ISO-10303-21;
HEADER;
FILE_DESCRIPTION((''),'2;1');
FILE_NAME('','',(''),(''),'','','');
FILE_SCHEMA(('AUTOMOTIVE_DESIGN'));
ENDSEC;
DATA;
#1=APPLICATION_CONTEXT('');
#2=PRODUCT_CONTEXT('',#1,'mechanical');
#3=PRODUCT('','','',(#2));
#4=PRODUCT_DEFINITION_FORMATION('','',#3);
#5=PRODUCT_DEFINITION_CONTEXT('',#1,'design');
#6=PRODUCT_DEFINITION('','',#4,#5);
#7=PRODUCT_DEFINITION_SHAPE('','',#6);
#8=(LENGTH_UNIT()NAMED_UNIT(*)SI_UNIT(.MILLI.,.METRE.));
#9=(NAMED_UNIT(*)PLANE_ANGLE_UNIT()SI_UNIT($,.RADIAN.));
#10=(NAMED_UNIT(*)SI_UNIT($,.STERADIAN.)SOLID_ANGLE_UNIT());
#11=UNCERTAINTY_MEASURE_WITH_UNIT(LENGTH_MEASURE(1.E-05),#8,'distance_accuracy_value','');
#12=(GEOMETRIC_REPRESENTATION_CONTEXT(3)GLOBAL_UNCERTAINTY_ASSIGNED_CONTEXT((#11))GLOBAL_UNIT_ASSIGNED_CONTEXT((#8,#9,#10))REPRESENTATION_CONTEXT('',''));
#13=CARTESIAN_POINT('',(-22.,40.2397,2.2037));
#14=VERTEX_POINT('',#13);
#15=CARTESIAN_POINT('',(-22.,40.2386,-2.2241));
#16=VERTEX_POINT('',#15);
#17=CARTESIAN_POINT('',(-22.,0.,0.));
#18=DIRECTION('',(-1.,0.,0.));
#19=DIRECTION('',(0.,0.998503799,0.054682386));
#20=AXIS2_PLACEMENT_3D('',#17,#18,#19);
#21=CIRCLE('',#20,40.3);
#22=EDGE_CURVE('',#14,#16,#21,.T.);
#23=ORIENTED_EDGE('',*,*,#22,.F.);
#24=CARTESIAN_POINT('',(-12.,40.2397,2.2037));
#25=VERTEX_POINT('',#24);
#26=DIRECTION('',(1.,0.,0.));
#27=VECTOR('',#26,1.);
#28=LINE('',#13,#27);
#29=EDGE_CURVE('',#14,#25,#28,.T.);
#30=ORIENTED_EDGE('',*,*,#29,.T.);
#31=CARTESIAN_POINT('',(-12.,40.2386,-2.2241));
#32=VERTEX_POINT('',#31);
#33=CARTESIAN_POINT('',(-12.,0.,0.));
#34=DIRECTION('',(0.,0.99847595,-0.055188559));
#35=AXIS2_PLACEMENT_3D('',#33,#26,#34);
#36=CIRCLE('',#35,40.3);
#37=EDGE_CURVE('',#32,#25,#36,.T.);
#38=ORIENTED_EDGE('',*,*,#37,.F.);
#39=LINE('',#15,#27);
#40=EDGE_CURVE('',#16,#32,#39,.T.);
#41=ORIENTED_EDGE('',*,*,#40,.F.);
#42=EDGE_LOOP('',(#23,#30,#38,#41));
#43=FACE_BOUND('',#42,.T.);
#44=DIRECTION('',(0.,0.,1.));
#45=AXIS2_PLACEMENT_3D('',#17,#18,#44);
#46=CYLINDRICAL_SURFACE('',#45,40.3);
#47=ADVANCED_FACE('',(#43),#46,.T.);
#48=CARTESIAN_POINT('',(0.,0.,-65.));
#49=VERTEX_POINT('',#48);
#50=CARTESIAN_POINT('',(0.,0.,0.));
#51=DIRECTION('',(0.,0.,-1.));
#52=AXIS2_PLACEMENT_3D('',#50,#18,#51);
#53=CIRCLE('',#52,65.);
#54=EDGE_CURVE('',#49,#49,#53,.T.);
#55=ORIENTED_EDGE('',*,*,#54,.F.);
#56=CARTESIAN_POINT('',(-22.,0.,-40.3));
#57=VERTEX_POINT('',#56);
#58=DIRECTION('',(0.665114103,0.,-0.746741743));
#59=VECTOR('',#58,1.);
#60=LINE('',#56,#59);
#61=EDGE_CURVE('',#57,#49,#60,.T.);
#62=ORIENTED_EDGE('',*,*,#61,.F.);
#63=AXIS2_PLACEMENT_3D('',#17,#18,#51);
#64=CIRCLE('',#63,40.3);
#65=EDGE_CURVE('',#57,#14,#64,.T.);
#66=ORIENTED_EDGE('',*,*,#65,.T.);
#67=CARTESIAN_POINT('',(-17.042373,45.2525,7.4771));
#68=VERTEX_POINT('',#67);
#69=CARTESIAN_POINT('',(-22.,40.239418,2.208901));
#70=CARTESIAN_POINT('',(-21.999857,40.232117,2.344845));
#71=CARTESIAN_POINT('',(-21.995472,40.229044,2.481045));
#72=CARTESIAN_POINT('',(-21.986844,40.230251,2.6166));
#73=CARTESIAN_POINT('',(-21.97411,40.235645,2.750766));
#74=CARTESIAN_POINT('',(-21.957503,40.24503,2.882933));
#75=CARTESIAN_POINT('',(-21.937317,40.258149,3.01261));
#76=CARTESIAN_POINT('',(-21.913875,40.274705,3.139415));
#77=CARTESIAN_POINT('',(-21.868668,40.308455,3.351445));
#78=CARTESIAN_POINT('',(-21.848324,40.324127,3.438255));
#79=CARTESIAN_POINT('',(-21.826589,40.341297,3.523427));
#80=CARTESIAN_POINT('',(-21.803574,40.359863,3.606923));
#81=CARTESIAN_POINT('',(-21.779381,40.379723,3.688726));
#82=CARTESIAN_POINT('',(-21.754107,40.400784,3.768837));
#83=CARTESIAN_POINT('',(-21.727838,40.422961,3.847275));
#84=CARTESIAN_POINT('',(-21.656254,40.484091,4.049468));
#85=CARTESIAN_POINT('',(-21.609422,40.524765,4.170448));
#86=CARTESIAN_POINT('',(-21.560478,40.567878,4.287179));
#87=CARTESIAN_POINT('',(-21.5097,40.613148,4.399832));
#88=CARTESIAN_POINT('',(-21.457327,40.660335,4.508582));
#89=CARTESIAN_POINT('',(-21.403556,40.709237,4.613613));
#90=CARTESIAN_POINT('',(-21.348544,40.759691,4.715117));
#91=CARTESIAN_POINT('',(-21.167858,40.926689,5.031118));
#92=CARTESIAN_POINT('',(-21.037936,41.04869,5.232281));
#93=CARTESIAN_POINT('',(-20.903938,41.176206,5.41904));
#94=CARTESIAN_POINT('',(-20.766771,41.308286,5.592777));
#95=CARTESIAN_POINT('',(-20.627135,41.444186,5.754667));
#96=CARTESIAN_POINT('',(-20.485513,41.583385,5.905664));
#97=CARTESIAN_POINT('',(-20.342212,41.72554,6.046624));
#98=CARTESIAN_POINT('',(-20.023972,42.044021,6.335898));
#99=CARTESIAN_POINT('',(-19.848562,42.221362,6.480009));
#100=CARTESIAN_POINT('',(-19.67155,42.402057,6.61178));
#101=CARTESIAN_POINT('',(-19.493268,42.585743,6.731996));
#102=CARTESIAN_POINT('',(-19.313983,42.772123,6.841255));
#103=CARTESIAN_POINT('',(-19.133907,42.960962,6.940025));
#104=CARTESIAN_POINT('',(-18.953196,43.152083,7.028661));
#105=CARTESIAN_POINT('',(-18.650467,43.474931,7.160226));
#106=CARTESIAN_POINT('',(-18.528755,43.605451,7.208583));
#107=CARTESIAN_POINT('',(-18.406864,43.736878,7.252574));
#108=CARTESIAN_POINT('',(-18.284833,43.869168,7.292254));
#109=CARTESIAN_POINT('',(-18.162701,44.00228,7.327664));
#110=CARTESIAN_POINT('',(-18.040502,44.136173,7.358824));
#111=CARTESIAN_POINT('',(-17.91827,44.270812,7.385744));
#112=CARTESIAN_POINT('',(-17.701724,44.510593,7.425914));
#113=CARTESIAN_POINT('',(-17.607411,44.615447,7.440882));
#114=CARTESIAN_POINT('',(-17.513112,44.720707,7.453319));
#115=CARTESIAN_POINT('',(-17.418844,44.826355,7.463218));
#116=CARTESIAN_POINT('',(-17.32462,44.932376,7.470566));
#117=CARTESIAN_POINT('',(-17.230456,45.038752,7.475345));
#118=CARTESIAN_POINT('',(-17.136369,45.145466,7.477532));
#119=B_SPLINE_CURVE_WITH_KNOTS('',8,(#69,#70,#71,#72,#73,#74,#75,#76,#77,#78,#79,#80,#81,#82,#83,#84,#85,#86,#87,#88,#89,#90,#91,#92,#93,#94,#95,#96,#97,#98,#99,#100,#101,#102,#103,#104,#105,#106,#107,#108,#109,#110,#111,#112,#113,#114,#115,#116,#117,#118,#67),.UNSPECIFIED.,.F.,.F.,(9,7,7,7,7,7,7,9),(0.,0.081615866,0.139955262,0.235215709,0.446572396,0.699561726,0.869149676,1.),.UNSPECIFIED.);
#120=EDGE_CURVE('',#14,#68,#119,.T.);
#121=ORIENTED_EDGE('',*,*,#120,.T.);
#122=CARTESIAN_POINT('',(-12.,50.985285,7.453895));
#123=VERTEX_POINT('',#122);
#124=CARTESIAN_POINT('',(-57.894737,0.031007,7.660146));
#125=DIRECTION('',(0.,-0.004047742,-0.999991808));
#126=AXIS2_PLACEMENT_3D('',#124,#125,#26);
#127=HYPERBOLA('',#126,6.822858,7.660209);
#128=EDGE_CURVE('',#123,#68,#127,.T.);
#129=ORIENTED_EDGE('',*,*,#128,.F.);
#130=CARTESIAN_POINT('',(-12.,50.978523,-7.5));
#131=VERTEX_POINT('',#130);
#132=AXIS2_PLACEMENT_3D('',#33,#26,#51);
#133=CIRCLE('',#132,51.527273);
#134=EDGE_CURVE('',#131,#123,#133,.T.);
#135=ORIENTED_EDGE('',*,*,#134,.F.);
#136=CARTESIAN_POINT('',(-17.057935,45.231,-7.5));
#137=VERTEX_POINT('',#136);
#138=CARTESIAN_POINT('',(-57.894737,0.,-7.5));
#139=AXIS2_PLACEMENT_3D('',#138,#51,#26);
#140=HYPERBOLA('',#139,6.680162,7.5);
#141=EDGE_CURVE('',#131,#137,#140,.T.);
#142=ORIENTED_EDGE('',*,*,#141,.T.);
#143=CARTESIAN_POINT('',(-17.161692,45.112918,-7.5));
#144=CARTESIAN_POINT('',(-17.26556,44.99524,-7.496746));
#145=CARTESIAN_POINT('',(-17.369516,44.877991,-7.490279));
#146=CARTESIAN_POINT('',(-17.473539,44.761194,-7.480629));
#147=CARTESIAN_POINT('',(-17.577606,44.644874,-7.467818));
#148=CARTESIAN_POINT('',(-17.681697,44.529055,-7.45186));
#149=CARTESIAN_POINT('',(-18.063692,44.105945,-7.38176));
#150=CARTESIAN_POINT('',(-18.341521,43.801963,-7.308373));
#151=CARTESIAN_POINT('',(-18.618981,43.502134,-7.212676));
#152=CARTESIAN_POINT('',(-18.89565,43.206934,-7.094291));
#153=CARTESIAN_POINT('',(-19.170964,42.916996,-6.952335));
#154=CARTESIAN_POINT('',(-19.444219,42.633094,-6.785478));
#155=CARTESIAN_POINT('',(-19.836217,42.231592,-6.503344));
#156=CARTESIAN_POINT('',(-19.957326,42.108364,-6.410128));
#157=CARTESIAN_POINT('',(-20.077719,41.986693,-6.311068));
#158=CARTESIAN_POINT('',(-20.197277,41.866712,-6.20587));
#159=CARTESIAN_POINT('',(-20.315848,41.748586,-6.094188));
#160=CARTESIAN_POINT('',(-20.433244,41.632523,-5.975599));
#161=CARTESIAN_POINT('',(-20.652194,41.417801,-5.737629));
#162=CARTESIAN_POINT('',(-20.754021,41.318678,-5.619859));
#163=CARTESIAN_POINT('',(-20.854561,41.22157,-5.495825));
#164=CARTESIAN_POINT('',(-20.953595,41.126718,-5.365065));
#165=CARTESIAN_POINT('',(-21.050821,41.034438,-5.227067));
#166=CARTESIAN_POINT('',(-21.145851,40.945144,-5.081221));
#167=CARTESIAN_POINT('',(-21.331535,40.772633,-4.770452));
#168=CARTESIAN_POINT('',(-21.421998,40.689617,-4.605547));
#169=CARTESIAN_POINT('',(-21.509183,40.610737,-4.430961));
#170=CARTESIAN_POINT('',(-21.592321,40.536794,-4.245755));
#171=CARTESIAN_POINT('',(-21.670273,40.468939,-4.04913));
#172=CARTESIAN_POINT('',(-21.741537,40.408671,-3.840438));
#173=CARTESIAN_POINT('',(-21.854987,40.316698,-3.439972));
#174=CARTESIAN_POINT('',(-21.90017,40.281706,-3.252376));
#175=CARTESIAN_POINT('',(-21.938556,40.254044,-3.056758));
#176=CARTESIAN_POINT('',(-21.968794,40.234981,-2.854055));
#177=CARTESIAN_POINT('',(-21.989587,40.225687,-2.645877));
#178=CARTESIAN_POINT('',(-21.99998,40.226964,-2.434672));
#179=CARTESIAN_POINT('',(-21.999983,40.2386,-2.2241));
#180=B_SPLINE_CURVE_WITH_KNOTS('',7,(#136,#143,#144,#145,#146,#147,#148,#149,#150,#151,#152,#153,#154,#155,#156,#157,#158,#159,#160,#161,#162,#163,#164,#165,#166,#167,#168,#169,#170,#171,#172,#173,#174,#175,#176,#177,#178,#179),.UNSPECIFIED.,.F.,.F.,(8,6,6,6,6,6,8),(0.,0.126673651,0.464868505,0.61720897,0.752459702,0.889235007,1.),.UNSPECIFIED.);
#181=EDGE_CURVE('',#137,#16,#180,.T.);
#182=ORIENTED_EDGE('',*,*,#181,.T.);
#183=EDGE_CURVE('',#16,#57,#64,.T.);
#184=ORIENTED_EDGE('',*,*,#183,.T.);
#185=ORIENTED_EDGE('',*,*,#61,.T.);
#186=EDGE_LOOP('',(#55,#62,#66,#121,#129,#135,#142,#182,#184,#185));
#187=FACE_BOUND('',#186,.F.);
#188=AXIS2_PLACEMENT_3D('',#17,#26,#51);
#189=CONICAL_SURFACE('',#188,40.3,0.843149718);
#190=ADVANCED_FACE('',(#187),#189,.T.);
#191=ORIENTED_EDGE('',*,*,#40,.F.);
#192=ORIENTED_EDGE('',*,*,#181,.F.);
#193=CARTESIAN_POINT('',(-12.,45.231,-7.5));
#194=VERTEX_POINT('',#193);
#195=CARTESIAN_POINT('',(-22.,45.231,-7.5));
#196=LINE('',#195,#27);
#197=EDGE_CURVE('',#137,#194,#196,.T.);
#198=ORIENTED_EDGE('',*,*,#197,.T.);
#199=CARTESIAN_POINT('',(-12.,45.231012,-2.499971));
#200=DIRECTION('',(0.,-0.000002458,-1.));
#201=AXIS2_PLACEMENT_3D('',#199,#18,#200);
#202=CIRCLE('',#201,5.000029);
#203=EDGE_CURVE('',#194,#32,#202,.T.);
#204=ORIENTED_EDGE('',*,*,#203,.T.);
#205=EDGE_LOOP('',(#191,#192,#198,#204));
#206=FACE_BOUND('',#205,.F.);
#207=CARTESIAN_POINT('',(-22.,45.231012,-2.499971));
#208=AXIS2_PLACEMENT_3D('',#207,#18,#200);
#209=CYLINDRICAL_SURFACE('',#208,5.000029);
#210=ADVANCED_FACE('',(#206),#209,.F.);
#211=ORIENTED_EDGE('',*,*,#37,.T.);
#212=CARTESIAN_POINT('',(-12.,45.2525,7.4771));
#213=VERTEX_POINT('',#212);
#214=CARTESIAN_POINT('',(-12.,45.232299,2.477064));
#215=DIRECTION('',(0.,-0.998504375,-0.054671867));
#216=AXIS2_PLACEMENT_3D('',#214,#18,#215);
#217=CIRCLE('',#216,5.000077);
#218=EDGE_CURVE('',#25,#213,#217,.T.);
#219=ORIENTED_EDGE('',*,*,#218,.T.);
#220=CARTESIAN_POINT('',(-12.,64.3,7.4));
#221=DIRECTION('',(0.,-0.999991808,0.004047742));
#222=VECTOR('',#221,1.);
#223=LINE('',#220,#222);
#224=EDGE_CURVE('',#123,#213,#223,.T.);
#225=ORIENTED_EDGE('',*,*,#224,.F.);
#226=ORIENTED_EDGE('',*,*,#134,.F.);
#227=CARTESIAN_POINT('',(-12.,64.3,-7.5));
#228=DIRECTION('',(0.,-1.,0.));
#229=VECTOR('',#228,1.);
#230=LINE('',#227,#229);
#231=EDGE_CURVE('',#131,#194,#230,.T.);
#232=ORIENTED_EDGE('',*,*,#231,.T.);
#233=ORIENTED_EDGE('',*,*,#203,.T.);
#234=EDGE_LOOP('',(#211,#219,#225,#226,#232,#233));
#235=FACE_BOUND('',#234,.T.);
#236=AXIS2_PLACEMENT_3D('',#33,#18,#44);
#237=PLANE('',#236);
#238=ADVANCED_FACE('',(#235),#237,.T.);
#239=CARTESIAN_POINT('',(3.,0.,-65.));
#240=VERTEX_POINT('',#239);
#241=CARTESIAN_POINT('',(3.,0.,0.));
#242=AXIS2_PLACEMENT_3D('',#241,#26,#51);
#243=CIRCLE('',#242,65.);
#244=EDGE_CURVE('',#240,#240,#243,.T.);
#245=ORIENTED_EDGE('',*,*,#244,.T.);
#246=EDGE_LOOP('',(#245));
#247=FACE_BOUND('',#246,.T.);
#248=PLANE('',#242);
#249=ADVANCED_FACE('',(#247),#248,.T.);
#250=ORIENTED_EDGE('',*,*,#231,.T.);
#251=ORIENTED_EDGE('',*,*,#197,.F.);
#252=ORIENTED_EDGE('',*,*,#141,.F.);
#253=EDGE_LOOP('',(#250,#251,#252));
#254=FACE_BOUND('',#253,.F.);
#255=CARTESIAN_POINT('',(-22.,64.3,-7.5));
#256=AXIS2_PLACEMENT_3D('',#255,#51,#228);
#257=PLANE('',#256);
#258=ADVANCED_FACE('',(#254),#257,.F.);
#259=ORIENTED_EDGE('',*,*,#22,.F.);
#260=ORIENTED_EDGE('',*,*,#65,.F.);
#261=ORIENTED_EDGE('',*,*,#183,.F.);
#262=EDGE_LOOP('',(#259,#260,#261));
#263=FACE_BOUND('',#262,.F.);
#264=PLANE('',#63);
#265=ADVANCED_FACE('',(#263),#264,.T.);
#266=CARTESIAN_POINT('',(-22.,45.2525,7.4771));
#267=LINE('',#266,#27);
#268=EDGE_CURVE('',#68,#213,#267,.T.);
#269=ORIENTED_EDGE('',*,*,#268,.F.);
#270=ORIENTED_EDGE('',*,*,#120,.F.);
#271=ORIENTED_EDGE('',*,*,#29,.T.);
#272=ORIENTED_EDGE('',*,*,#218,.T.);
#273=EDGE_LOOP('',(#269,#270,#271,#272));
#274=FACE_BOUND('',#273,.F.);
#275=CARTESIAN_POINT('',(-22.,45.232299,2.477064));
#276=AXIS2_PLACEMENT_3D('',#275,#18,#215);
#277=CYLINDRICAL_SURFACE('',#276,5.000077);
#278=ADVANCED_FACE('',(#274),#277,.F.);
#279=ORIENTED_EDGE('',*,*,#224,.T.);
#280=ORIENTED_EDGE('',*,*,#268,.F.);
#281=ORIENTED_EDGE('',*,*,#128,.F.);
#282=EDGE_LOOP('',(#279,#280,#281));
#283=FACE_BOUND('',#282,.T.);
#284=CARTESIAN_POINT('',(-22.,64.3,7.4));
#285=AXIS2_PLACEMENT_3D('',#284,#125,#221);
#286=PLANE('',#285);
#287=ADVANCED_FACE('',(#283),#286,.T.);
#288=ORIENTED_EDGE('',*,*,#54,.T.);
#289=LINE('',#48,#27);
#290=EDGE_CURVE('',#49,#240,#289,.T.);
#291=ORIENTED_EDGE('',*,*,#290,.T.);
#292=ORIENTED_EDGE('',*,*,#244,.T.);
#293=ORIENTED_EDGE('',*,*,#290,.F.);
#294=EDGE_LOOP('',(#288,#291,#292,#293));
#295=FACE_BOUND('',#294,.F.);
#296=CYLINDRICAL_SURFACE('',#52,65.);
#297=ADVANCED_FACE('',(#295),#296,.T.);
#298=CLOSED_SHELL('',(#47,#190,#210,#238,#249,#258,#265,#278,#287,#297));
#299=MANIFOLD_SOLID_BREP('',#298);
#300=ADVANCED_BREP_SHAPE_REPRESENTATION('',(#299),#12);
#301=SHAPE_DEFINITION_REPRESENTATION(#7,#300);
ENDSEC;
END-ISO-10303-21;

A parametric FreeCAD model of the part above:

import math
import FreeCAD as App
import Part
import Sketcher

V = App.Vector

doc = App.newDocument("Part")
body = doc.addObject("PartDesign::Body", "Body")

sketch1 = doc.addObject("Sketcher::SketchObject", "Sketch")
body.addObject(sketch1)
sketch1.AttachmentSupport = (doc.XZ_Plane, [""])
sketch1.MapMode = "FlatFace"
sketch1.addGeometry([
    Part.LineSegment(V(-22, 0, 0), V(0, 0, 0)),
    Part.LineSegment(V(0, 0, 0), V(0, -65, 0)),
    Part.LineSegment(V(0, -65, 0), V(-22, -40, 0)),
    Part.LineSegment(V(-22, -40, 0), V(-22, 0, 0)),
], False)
sketch1.addConstraint([
    Sketcher.Constraint("Coincident", 0, 2, 1, 1),
    Sketcher.Constraint("Coincident", 1, 2, 2, 1),
    Sketcher.Constraint("Coincident", 2, 2, 3, 1),
    Sketcher.Constraint("Coincident", 3, 2, 0, 1),
    Sketcher.Constraint("Horizontal", 0),
    Sketcher.Constraint("Vertical", 1),
    Sketcher.Constraint("Vertical", 3),
    Sketcher.Constraint("Coincident", 0, 2, -1, 1),
    Sketcher.Constraint("DistanceX", 0, 1, 0, 2, 22.0),
    Sketcher.Constraint("DistanceY", 1, 2, 1, 1, 65.0),
    Sketcher.Constraint("DistanceY", 3, 1, 3, 2, 40.3),
])
revolution = doc.addObject("PartDesign::Revolution", "Revolution")
body.addObject(revolution)
revolution.Profile = sketch1
revolution.ReferenceAxis = (sketch1, ["H_Axis"])
revolution.Angle = 360

sketch2 = doc.addObject("Sketcher::SketchObject", "Sketch001")
body.addObject(sketch2)
sketch2.AttachmentSupport = (doc.YZ_Plane, [""])
sketch2.MapMode = "FlatFace"
sketch2.AttachmentOffset = App.Placement(V(0, 0, -22), App.Rotation())
sketch2.addGeometry([
    Part.ArcOfCircle(Part.Circle(V(45.2, 2.5, 0), V(0, 0, 1), 5), math.radians(90), math.radians(183)),
    Part.LineSegment(V(45.3, 7.5, 0), V(64.3, 7.4, 0)),
    Part.LineSegment(V(64.3, 7.4, 0), V(64.3, -7.5, 0)),
    Part.LineSegment(V(64.3, -7.5, 0), V(45.2, -7.5, 0)),
    Part.ArcOfCircle(Part.Circle(V(45.2, -2.5, 0), V(0, 0, 1), 5), math.radians(177), math.radians(270)),
    Part.ArcOfCircle(Part.Circle(V(0, 0, 0), V(0, 0, 1), 40.3), math.radians(-3.16), math.radians(3.13)),
], False)
sketch2.addConstraint([
    Sketcher.Constraint("Tangent", 0, 1, 1, 1),
    Sketcher.Constraint("Coincident", 1, 2, 2, 1),
    Sketcher.Constraint("Coincident", 2, 2, 3, 1),
    Sketcher.Constraint("Tangent", 3, 2, 4, 2),
    Sketcher.Constraint("Tangent", 4, 1, 5, 1),
    Sketcher.Constraint("Tangent", 5, 2, 0, 2),
    Sketcher.Constraint("Vertical", 2),
    Sketcher.Constraint("Horizontal", 3),
    Sketcher.Constraint("Coincident", 5, 3, -1, 1),
    Sketcher.Constraint("Equal", 0, 4),
    Sketcher.Constraint("Radius", 0, 5.0),
    Sketcher.Constraint("DistanceY", -1, 1, 1, 2, 7.4),
    Sketcher.Constraint("DistanceY", 2, 2, -1, 1, 7.5),
    Sketcher.Constraint("Radius", 5, 40.3),
    Sketcher.Constraint("DistanceX", -1, 1, 1, 2, 64.3),
    Sketcher.Constraint("DistanceY", -1, 1, 0, 3, 2.477),
])
pocket1 = doc.addObject("PartDesign::Pocket", "Pocket")
body.addObject(pocket1)
pocket1.Profile = sketch2
pocket1.Length = 10
pocket1.Reversed = True

sketch3 = doc.addObject("Sketcher::SketchObject", "Sketch002")
body.addObject(sketch3)
sketch3.AttachmentSupport = (doc.YZ_Plane, [""])
sketch3.MapMode = "FlatFace"
sketch3.addGeometry(Part.Circle(V(0, 0, 0), V(0, 0, 1), 65), False)
sketch3.addConstraint([
    Sketcher.Constraint("Coincident", 0, 3, -1, 1),
    Sketcher.Constraint("Diameter", 0, 130.0),
])
pad1 = doc.addObject("PartDesign::Pad", "Pad")
body.addObject(pad1)
pad1.Profile = sketch3
pad1.Length = 3

doc.recompute()
